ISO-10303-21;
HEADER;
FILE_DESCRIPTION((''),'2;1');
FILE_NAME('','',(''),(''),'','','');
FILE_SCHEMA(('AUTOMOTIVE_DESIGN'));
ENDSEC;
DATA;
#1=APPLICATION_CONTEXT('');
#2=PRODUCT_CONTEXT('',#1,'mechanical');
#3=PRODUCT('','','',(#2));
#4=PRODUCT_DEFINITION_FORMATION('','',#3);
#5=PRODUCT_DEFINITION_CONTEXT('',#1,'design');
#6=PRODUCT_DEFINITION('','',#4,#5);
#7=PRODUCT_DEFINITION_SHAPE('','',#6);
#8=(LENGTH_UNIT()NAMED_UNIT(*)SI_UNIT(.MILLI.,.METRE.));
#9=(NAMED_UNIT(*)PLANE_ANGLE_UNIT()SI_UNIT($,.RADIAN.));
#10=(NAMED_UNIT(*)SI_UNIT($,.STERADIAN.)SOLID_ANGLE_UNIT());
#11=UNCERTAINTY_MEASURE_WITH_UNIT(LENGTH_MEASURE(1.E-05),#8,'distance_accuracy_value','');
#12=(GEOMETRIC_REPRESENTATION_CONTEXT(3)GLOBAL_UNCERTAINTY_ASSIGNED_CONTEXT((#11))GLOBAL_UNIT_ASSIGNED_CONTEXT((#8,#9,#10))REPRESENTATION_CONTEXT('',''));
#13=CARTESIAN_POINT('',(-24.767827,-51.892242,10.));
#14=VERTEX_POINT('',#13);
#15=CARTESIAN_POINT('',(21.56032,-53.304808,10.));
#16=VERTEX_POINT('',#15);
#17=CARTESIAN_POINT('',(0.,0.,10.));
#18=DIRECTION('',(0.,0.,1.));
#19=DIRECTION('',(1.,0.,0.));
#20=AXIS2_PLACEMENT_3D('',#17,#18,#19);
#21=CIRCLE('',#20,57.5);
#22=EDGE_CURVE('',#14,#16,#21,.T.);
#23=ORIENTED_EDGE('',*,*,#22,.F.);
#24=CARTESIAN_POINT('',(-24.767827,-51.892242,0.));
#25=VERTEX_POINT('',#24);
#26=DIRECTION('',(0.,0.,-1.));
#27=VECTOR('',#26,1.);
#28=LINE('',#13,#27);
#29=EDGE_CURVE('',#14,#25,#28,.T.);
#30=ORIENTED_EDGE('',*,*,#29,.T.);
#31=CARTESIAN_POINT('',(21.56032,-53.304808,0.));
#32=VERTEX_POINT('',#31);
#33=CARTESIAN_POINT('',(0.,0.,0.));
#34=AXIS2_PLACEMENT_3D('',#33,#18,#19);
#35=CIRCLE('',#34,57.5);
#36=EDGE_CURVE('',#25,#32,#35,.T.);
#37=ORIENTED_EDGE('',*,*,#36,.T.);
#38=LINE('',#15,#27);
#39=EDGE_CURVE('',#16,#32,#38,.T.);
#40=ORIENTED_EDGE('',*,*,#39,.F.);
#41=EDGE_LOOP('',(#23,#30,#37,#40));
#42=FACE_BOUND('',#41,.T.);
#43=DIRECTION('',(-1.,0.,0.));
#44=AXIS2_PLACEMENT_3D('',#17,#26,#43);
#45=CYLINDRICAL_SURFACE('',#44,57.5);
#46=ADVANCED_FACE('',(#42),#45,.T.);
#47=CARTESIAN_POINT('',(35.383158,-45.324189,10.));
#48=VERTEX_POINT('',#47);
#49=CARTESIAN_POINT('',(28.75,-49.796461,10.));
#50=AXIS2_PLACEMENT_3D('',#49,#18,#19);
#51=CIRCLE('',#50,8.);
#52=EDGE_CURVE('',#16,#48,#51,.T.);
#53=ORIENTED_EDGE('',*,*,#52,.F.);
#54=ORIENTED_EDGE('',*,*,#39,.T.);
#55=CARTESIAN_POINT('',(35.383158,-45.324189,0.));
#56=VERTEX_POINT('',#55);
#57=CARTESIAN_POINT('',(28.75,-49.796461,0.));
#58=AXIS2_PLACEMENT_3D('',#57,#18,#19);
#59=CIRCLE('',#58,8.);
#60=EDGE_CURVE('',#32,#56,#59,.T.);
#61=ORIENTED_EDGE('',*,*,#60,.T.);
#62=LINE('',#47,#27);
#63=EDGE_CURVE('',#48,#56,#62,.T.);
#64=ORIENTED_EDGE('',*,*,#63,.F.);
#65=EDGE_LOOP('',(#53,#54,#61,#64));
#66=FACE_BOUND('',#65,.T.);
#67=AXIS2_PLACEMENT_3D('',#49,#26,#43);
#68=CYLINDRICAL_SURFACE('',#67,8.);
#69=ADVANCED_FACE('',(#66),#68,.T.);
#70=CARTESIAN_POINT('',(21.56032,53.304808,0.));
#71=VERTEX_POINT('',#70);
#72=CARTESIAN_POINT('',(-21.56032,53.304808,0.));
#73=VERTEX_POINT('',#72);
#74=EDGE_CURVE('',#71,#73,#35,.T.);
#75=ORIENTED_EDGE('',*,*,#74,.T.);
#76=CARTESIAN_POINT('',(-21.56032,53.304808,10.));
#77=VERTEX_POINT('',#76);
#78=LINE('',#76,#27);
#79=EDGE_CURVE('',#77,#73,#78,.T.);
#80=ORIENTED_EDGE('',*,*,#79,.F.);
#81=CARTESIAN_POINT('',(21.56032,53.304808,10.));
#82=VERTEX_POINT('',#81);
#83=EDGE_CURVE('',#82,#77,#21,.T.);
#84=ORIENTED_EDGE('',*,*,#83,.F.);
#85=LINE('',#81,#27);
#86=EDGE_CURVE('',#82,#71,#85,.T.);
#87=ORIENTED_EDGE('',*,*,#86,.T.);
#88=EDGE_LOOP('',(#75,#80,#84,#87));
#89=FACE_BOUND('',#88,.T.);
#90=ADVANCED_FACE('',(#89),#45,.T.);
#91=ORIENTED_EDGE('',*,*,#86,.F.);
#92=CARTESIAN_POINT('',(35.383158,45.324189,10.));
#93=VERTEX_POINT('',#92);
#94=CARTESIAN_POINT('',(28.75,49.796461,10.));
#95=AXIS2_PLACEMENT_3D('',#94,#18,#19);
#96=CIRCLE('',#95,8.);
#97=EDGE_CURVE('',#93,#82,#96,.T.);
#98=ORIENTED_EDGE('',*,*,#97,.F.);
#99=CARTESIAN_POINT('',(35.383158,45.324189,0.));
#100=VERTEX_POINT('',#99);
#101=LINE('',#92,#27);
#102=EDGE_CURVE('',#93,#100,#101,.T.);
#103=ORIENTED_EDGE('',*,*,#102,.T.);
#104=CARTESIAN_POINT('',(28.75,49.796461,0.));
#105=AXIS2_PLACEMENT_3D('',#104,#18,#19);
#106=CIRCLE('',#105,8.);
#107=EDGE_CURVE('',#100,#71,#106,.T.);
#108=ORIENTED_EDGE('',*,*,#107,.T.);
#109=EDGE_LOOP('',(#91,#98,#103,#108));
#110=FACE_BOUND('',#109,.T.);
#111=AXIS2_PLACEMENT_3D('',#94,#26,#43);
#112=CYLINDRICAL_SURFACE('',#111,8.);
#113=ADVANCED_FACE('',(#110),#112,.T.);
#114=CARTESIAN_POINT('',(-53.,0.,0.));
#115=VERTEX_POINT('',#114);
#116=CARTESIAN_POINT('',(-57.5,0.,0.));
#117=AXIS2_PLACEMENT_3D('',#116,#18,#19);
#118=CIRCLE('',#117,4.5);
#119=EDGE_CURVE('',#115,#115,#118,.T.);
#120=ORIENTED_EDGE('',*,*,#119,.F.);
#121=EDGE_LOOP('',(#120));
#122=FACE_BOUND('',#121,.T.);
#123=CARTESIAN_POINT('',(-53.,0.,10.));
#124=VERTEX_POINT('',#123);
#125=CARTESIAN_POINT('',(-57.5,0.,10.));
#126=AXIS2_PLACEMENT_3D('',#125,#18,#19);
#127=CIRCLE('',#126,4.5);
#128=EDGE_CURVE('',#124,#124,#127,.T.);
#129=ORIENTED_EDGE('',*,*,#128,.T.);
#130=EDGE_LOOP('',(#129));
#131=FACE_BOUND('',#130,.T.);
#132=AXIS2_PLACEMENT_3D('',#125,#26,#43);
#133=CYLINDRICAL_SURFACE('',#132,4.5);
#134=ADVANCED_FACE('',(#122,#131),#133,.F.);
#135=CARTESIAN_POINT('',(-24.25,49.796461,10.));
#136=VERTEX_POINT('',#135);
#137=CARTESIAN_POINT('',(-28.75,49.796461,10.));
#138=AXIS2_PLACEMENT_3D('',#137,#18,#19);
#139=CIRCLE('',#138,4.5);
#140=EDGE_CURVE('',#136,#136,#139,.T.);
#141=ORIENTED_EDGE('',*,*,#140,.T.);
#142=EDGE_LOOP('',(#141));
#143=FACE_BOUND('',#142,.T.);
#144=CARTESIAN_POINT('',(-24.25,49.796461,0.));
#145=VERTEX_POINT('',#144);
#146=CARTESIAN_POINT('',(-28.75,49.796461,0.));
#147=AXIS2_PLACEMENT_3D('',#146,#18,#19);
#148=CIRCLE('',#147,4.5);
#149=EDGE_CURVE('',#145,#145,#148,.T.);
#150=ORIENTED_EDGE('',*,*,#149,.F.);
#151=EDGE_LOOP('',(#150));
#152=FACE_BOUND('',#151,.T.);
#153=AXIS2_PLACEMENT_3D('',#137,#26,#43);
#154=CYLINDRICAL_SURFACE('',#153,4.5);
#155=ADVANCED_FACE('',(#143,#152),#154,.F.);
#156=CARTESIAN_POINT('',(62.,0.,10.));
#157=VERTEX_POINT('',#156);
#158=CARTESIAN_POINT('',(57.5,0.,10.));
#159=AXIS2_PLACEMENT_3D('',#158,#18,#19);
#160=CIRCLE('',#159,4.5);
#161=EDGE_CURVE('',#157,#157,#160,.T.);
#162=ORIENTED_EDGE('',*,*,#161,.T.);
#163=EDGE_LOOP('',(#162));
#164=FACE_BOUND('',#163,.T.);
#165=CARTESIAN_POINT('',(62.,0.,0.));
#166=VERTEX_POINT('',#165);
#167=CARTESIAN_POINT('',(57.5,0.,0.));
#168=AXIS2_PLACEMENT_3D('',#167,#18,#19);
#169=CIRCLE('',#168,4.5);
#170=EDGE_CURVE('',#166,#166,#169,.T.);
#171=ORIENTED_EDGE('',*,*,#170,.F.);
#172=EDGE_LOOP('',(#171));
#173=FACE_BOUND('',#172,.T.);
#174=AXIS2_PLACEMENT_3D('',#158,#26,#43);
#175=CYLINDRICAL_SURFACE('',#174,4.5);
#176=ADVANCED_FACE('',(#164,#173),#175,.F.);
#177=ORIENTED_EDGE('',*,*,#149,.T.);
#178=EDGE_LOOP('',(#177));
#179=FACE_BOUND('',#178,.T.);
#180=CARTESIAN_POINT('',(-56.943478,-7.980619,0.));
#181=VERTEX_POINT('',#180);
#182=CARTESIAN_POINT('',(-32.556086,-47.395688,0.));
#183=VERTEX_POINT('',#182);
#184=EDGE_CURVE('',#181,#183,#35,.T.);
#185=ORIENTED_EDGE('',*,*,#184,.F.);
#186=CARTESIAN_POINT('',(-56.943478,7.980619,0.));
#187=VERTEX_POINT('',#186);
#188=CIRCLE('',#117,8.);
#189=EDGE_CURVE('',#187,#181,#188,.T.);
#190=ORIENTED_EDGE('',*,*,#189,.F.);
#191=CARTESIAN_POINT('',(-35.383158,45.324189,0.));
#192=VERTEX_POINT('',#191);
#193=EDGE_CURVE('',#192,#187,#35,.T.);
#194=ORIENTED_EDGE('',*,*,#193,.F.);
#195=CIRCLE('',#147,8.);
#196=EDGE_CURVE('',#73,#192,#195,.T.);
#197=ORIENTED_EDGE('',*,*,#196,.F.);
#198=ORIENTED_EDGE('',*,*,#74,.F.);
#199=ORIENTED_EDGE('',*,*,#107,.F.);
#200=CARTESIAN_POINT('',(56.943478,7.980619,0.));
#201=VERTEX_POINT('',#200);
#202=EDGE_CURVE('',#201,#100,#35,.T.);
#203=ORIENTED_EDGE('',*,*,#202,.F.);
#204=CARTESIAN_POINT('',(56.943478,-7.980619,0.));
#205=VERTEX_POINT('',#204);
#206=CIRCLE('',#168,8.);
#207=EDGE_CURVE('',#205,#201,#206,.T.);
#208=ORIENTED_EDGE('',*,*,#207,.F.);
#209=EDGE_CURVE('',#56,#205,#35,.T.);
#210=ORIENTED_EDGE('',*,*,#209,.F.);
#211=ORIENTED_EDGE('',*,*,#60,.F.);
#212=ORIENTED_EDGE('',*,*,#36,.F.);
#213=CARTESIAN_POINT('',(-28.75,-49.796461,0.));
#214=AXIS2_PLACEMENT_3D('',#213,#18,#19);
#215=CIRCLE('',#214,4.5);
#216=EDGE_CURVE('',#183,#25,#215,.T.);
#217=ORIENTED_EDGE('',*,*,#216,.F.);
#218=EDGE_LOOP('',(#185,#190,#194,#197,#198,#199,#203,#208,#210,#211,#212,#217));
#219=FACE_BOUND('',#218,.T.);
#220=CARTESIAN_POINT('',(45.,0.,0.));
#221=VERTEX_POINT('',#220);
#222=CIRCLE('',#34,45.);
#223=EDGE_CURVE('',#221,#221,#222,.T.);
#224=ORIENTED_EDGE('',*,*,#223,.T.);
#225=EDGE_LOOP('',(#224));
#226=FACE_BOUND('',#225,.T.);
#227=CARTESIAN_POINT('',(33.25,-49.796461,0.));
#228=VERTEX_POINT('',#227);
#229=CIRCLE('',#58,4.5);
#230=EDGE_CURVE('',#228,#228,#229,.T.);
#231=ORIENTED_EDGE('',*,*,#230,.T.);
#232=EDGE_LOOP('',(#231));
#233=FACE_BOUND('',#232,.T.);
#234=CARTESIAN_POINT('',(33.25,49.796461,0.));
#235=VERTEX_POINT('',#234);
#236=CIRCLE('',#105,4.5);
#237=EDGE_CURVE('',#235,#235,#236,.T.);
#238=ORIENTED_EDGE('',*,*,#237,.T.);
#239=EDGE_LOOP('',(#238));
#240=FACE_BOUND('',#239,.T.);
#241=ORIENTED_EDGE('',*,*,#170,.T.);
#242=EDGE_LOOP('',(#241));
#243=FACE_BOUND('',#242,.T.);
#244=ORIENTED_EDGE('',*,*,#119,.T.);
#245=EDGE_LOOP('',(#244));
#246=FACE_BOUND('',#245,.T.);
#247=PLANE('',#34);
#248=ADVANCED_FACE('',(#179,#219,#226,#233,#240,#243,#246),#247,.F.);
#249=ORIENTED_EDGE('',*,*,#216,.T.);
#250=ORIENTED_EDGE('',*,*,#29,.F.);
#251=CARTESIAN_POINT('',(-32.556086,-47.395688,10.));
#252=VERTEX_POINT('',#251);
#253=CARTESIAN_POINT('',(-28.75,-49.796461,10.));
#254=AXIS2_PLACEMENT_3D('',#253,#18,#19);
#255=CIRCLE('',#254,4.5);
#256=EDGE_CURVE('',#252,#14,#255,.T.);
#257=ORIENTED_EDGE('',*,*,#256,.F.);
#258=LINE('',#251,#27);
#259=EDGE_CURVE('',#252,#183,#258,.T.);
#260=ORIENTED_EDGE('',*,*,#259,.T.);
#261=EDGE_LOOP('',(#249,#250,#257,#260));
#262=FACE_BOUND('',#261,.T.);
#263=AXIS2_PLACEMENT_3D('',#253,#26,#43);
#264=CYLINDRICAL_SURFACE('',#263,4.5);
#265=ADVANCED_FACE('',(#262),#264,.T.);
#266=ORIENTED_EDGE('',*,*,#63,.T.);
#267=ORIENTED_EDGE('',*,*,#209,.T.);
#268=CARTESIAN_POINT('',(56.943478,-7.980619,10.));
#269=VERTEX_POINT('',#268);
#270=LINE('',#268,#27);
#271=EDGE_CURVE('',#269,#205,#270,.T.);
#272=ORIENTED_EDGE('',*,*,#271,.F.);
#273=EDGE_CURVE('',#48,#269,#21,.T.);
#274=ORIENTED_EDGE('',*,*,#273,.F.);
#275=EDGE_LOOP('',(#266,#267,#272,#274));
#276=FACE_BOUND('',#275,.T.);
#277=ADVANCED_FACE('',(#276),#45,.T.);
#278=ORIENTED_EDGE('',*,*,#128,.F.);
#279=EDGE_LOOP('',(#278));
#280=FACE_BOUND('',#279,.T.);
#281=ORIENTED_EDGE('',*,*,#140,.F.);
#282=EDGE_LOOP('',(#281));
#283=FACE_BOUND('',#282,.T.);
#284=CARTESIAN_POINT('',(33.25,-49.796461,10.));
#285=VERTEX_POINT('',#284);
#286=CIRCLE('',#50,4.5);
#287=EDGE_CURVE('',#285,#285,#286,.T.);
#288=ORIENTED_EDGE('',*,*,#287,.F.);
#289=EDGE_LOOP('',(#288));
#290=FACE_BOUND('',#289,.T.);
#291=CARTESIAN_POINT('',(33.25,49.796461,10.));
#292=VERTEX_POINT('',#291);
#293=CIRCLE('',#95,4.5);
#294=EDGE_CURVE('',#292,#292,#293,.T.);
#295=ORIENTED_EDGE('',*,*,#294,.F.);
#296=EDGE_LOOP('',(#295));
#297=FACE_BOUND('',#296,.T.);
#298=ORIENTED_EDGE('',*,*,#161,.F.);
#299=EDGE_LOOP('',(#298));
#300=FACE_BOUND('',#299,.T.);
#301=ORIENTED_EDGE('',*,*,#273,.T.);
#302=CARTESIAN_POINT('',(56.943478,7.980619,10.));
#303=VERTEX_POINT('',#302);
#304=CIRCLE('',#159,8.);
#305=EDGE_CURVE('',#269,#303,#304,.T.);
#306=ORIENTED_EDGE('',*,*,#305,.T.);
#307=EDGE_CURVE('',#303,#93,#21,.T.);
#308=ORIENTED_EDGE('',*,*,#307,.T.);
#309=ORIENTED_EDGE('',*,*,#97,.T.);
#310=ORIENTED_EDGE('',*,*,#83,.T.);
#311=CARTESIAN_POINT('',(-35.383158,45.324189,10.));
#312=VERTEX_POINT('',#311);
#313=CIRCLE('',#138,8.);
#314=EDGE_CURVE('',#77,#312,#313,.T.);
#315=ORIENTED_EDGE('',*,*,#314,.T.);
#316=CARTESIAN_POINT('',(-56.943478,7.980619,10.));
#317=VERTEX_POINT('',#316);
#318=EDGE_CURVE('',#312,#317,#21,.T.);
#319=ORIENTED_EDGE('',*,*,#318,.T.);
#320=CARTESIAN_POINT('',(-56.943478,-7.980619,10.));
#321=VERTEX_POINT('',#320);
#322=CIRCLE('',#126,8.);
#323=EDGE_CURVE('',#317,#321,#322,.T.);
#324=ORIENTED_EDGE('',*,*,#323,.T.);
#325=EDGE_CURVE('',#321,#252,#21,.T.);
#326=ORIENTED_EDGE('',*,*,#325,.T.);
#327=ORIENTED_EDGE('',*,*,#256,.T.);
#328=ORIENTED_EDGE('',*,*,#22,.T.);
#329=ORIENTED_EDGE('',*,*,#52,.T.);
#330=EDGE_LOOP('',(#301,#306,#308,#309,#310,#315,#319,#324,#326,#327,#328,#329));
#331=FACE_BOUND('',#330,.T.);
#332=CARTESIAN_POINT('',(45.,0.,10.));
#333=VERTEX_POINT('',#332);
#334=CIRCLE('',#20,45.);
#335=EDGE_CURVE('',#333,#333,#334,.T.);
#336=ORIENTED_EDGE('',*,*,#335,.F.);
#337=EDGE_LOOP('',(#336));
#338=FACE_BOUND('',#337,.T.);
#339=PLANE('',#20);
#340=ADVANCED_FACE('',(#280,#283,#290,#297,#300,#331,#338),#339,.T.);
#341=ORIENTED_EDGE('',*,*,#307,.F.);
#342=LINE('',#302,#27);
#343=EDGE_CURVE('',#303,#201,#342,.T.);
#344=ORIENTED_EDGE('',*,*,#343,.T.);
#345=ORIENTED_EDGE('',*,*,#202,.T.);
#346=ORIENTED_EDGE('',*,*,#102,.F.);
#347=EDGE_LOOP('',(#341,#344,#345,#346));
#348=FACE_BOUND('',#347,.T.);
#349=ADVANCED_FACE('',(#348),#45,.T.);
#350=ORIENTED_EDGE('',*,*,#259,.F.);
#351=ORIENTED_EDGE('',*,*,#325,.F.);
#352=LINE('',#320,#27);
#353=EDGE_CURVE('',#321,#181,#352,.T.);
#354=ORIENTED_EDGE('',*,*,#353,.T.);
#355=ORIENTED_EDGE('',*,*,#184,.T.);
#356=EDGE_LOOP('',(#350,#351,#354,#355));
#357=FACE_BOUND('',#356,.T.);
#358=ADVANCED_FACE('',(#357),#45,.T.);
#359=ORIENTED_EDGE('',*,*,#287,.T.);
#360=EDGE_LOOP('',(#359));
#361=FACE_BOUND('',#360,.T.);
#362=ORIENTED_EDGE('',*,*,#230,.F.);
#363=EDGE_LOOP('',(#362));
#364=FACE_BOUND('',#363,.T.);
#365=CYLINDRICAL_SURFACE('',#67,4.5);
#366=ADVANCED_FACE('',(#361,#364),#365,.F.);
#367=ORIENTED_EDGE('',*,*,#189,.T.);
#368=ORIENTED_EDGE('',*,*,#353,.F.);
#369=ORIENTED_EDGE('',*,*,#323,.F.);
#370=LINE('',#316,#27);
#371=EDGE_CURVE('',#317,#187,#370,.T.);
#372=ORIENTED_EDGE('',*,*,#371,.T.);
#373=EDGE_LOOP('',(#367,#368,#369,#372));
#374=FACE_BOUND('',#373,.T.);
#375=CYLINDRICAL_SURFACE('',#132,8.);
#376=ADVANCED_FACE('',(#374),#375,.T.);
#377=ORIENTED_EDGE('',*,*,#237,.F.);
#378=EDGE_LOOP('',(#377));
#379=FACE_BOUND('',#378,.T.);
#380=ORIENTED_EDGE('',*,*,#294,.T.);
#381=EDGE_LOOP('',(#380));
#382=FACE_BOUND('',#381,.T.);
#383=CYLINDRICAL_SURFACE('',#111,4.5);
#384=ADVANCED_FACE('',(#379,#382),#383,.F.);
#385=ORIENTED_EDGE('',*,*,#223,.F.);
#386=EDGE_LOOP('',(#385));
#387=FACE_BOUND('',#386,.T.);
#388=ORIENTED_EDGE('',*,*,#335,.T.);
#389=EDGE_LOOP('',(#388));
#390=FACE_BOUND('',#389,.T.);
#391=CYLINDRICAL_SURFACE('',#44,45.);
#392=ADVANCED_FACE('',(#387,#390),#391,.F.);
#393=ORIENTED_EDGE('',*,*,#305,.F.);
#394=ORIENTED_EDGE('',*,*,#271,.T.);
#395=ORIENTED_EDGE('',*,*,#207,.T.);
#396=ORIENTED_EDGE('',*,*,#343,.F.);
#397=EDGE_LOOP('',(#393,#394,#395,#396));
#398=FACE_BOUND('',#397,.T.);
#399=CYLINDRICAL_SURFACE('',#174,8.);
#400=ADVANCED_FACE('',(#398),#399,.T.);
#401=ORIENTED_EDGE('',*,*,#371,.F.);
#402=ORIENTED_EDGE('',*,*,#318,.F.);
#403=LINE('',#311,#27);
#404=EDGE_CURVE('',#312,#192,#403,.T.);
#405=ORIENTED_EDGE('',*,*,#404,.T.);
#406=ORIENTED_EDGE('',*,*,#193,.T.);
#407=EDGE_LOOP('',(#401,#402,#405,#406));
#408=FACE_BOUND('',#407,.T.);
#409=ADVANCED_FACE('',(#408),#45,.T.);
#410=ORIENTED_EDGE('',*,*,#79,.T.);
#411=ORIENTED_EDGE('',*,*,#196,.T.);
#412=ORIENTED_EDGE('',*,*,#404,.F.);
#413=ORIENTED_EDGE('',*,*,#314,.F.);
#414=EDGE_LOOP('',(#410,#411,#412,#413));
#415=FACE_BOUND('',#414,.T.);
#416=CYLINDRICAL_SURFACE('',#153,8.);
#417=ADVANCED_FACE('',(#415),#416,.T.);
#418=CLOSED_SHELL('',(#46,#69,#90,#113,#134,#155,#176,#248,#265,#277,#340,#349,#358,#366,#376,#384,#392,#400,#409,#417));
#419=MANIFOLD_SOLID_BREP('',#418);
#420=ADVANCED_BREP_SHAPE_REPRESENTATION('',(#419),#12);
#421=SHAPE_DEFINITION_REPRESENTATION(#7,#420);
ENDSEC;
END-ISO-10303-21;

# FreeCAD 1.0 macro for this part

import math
import FreeCAD as App
import Part
import Sketcher

doc = App.newDocument("Part")
body = doc.addObject("PartDesign::Body", "Body")

# Sketch on XY plane
sketch1 = body.newObject("Sketcher::SketchObject", "Sketch")
sketch1.AttachmentSupport = (doc.getObject("XY_Plane"), [""])
sketch1.MapMode = "FlatFace"
sketch1.addGeometry(Part.ArcOfCircle(Part.Circle(App.Vector(57.5, 0, 0), App.Vector(0, 0, 1), 8), math.radians(-93.989015), math.radians(93.989015)), False)
sketch1.addGeometry(Part.ArcOfCircle(Part.Circle(App.Vector(0, 0, 0), App.Vector(0, 0, 1), 57.5), math.radians(7.97803), math.radians(52.02197)), False)
sketch1.addGeometry(Part.ArcOfCircle(Part.Circle(App.Vector(28.75, 49.796461, 0), App.Vector(0, 0, 1), 8), math.radians(-33.989015), math.radians(153.989015)), False)
sketch1.addGeometry(Part.ArcOfCircle(Part.Circle(App.Vector(0, 0, 0), App.Vector(0, 0, 1), 57.5), math.radians(67.97803), math.radians(112.02197)), False)
sketch1.addGeometry(Part.ArcOfCircle(Part.Circle(App.Vector(-28.75, 49.796461, 0), App.Vector(0, 0, 1), 8), math.radians(26.010985), math.radians(213.989015)), False)
sketch1.addGeometry(Part.ArcOfCircle(Part.Circle(App.Vector(0, 0, 0), App.Vector(0, 0, 1), 57.5), math.radians(127.97803), math.radians(172.02197)), False)
sketch1.addGeometry(Part.ArcOfCircle(Part.Circle(App.Vector(-57.5, 0, 0), App.Vector(0, 0, 1), 8), math.radians(86.010985), math.radians(273.989015)), False)
sketch1.addGeometry(Part.ArcOfCircle(Part.Circle(App.Vector(0, 0, 0), App.Vector(0, 0, 1), 57.5), math.radians(-172.02197), math.radians(-124.485163)), False)
sketch1.addGeometry(Part.ArcOfCircle(Part.Circle(App.Vector(-28.75, -49.796461, 0), App.Vector(0, 0, 1), 4.5), math.radians(147.757419), math.radians(332.242581)), False)
sketch1.addGeometry(Part.ArcOfCircle(Part.Circle(App.Vector(0, 0, 0), App.Vector(0, 0, 1), 57.5), math.radians(-115.514837), math.radians(-67.97803)), False)
sketch1.addGeometry(Part.ArcOfCircle(Part.Circle(App.Vector(28.75, -49.796461, 0), App.Vector(0, 0, 1), 8), math.radians(-153.989015), math.radians(33.989015)), False)
sketch1.addGeometry(Part.ArcOfCircle(Part.Circle(App.Vector(0, 0, 0), App.Vector(0, 0, 1), 57.5), math.radians(-52.02197), math.radians(-7.97803)), False)
sketch1.addGeometry(Part.Circle(App.Vector(28.75, -49.796461, 0), App.Vector(0, 0, 1), 4.5), False)
sketch1.addGeometry(Part.Circle(App.Vector(-57.5, 0, 0), App.Vector(0, 0, 1), 4.5), False)
sketch1.addGeometry(Part.Circle(App.Vector(-28.75, 49.796461, 0), App.Vector(0, 0, 1), 4.5), False)
sketch1.addGeometry(Part.Circle(App.Vector(0, 0, 0), App.Vector(0, 0, 1), 45), False)
sketch1.addGeometry(Part.Circle(App.Vector(57.5, 0, 0), App.Vector(0, 0, 1), 4.5), False)
sketch1.addGeometry(Part.Circle(App.Vector(28.75, 49.796461, 0), App.Vector(0, 0, 1), 4.5), False)
sketch1.addConstraint(Sketcher.Constraint("Coincident", 0, 2, 1, 1))
sketch1.addConstraint(Sketcher.Constraint("Coincident", 1, 2, 2, 1))
sketch1.addConstraint(Sketcher.Constraint("Coincident", 2, 2, 3, 1))
sketch1.addConstraint(Sketcher.Constraint("Coincident", 3, 2, 4, 1))
sketch1.addConstraint(Sketcher.Constraint("Coincident", 4, 2, 5, 1))
sketch1.addConstraint(Sketcher.Constraint("Coincident", 5, 2, 6, 1))
sketch1.addConstraint(Sketcher.Constraint("Coincident", 6, 2, 7, 1))
sketch1.addConstraint(Sketcher.Constraint("Coincident", 7, 2, 8, 1))
sketch1.addConstraint(Sketcher.Constraint("Coincident", 8, 2, 9, 1))
sketch1.addConstraint(Sketcher.Constraint("Coincident", 9, 2, 10, 1))
sketch1.addConstraint(Sketcher.Constraint("Coincident", 10, 2, 11, 1))
sketch1.addConstraint(Sketcher.Constraint("Coincident", 11, 2, 0, 1))
sketch1.addConstraint(Sketcher.Constraint("Coincident", 1, 3, -1, 1))
sketch1.addConstraint(Sketcher.Constraint("Coincident", 3, 3, -1, 1))
sketch1.addConstraint(Sketcher.Constraint("Coincident", 5, 3, -1, 1))
sketch1.addConstraint(Sketcher.Constraint("Coincident", 7, 3, -1, 1))
sketch1.addConstraint(Sketcher.Constraint("Coincident", 9, 3, -1, 1))
sketch1.addConstraint(Sketcher.Constraint("Coincident", 11, 3, -1, 1))
sketch1.addConstraint(Sketcher.Constraint("Coincident", 15, 3, -1, 1))
sketch1.addConstraint(Sketcher.Constraint("Coincident", 12, 3, 10, 3))
sketch1.addConstraint(Sketcher.Constraint("Coincident", 13, 3, 6, 3))
sketch1.addConstraint(Sketcher.Constraint("Coincident", 14, 3, 4, 3))
sketch1.addConstraint(Sketcher.Constraint("Coincident", 16, 3, 0, 3))
sketch1.addConstraint(Sketcher.Constraint("Coincident", 17, 3, 2, 3))
sketch1.addConstraint(Sketcher.Constraint("Equal", 0, 2))
sketch1.addConstraint(Sketcher.Constraint("Equal", 1, 3))
sketch1.addConstraint(Sketcher.Constraint("Equal", 2, 4))
sketch1.addConstraint(Sketcher.Constraint("Equal", 3, 5))
sketch1.addConstraint(Sketcher.Constraint("Equal", 4, 6))
sketch1.addConstraint(Sketcher.Constraint("Equal", 5, 7))
sketch1.addConstraint(Sketcher.Constraint("Equal", 7, 9))
sketch1.addConstraint(Sketcher.Constraint("Equal", 6, 10))
sketch1.addConstraint(Sketcher.Constraint("Equal", 9, 11))
sketch1.addConstraint(Sketcher.Constraint("Equal", 8, 12))
sketch1.addConstraint(Sketcher.Constraint("Equal", 12, 13))
sketch1.addConstraint(Sketcher.Constraint("Equal", 13, 14))
sketch1.addConstraint(Sketcher.Constraint("Equal", 14, 16))
sketch1.addConstraint(Sketcher.Constraint("Equal", 16, 17))
sketch1.addConstraint(Sketcher.Constraint("Symmetric", 0, 3, 6, 3, -1, 1))
sketch1.addConstraint(Sketcher.Constraint("Symmetric", 2, 3, 8, 3, -1, 1))
sketch1.addConstraint(Sketcher.Constraint("Symmetric", 4, 3, 10, 3, -1, 1))
sketch1.addConstraint(Sketcher.Constraint("Symmetric", 2, 3, 4, 3, -2))
sketch1.addConstraint(Sketcher.Constraint("PointOnObject", 0, 3, -1))
sketch1.addConstraint(Sketcher.Constraint("Diameter", 12, 9.0))
sketch1.addConstraint(Sketcher.Constraint("Diameter", 15, 90.0))
sketch1.addConstraint(Sketcher.Constraint("Radius", 0, 8.0))
sketch1.addConstraint(Sketcher.Constraint("Radius", 1, 57.5))
sketch1.addConstraint(Sketcher.Constraint("DistanceX", -1, 1, 0, 3, 57.5))
sketch1.addConstraint(Sketcher.Constraint("DistanceX", 4, 3, 2, 3, 57.5))
sketch1.addConstraint(Sketcher.Constraint("DistanceY", -1, 1, 2, 3, 49.796461))
pad1 = body.newObject("PartDesign::Pad", "Pad")
pad1.Profile = sketch1
pad1.Length = 10

doc.recompute()
